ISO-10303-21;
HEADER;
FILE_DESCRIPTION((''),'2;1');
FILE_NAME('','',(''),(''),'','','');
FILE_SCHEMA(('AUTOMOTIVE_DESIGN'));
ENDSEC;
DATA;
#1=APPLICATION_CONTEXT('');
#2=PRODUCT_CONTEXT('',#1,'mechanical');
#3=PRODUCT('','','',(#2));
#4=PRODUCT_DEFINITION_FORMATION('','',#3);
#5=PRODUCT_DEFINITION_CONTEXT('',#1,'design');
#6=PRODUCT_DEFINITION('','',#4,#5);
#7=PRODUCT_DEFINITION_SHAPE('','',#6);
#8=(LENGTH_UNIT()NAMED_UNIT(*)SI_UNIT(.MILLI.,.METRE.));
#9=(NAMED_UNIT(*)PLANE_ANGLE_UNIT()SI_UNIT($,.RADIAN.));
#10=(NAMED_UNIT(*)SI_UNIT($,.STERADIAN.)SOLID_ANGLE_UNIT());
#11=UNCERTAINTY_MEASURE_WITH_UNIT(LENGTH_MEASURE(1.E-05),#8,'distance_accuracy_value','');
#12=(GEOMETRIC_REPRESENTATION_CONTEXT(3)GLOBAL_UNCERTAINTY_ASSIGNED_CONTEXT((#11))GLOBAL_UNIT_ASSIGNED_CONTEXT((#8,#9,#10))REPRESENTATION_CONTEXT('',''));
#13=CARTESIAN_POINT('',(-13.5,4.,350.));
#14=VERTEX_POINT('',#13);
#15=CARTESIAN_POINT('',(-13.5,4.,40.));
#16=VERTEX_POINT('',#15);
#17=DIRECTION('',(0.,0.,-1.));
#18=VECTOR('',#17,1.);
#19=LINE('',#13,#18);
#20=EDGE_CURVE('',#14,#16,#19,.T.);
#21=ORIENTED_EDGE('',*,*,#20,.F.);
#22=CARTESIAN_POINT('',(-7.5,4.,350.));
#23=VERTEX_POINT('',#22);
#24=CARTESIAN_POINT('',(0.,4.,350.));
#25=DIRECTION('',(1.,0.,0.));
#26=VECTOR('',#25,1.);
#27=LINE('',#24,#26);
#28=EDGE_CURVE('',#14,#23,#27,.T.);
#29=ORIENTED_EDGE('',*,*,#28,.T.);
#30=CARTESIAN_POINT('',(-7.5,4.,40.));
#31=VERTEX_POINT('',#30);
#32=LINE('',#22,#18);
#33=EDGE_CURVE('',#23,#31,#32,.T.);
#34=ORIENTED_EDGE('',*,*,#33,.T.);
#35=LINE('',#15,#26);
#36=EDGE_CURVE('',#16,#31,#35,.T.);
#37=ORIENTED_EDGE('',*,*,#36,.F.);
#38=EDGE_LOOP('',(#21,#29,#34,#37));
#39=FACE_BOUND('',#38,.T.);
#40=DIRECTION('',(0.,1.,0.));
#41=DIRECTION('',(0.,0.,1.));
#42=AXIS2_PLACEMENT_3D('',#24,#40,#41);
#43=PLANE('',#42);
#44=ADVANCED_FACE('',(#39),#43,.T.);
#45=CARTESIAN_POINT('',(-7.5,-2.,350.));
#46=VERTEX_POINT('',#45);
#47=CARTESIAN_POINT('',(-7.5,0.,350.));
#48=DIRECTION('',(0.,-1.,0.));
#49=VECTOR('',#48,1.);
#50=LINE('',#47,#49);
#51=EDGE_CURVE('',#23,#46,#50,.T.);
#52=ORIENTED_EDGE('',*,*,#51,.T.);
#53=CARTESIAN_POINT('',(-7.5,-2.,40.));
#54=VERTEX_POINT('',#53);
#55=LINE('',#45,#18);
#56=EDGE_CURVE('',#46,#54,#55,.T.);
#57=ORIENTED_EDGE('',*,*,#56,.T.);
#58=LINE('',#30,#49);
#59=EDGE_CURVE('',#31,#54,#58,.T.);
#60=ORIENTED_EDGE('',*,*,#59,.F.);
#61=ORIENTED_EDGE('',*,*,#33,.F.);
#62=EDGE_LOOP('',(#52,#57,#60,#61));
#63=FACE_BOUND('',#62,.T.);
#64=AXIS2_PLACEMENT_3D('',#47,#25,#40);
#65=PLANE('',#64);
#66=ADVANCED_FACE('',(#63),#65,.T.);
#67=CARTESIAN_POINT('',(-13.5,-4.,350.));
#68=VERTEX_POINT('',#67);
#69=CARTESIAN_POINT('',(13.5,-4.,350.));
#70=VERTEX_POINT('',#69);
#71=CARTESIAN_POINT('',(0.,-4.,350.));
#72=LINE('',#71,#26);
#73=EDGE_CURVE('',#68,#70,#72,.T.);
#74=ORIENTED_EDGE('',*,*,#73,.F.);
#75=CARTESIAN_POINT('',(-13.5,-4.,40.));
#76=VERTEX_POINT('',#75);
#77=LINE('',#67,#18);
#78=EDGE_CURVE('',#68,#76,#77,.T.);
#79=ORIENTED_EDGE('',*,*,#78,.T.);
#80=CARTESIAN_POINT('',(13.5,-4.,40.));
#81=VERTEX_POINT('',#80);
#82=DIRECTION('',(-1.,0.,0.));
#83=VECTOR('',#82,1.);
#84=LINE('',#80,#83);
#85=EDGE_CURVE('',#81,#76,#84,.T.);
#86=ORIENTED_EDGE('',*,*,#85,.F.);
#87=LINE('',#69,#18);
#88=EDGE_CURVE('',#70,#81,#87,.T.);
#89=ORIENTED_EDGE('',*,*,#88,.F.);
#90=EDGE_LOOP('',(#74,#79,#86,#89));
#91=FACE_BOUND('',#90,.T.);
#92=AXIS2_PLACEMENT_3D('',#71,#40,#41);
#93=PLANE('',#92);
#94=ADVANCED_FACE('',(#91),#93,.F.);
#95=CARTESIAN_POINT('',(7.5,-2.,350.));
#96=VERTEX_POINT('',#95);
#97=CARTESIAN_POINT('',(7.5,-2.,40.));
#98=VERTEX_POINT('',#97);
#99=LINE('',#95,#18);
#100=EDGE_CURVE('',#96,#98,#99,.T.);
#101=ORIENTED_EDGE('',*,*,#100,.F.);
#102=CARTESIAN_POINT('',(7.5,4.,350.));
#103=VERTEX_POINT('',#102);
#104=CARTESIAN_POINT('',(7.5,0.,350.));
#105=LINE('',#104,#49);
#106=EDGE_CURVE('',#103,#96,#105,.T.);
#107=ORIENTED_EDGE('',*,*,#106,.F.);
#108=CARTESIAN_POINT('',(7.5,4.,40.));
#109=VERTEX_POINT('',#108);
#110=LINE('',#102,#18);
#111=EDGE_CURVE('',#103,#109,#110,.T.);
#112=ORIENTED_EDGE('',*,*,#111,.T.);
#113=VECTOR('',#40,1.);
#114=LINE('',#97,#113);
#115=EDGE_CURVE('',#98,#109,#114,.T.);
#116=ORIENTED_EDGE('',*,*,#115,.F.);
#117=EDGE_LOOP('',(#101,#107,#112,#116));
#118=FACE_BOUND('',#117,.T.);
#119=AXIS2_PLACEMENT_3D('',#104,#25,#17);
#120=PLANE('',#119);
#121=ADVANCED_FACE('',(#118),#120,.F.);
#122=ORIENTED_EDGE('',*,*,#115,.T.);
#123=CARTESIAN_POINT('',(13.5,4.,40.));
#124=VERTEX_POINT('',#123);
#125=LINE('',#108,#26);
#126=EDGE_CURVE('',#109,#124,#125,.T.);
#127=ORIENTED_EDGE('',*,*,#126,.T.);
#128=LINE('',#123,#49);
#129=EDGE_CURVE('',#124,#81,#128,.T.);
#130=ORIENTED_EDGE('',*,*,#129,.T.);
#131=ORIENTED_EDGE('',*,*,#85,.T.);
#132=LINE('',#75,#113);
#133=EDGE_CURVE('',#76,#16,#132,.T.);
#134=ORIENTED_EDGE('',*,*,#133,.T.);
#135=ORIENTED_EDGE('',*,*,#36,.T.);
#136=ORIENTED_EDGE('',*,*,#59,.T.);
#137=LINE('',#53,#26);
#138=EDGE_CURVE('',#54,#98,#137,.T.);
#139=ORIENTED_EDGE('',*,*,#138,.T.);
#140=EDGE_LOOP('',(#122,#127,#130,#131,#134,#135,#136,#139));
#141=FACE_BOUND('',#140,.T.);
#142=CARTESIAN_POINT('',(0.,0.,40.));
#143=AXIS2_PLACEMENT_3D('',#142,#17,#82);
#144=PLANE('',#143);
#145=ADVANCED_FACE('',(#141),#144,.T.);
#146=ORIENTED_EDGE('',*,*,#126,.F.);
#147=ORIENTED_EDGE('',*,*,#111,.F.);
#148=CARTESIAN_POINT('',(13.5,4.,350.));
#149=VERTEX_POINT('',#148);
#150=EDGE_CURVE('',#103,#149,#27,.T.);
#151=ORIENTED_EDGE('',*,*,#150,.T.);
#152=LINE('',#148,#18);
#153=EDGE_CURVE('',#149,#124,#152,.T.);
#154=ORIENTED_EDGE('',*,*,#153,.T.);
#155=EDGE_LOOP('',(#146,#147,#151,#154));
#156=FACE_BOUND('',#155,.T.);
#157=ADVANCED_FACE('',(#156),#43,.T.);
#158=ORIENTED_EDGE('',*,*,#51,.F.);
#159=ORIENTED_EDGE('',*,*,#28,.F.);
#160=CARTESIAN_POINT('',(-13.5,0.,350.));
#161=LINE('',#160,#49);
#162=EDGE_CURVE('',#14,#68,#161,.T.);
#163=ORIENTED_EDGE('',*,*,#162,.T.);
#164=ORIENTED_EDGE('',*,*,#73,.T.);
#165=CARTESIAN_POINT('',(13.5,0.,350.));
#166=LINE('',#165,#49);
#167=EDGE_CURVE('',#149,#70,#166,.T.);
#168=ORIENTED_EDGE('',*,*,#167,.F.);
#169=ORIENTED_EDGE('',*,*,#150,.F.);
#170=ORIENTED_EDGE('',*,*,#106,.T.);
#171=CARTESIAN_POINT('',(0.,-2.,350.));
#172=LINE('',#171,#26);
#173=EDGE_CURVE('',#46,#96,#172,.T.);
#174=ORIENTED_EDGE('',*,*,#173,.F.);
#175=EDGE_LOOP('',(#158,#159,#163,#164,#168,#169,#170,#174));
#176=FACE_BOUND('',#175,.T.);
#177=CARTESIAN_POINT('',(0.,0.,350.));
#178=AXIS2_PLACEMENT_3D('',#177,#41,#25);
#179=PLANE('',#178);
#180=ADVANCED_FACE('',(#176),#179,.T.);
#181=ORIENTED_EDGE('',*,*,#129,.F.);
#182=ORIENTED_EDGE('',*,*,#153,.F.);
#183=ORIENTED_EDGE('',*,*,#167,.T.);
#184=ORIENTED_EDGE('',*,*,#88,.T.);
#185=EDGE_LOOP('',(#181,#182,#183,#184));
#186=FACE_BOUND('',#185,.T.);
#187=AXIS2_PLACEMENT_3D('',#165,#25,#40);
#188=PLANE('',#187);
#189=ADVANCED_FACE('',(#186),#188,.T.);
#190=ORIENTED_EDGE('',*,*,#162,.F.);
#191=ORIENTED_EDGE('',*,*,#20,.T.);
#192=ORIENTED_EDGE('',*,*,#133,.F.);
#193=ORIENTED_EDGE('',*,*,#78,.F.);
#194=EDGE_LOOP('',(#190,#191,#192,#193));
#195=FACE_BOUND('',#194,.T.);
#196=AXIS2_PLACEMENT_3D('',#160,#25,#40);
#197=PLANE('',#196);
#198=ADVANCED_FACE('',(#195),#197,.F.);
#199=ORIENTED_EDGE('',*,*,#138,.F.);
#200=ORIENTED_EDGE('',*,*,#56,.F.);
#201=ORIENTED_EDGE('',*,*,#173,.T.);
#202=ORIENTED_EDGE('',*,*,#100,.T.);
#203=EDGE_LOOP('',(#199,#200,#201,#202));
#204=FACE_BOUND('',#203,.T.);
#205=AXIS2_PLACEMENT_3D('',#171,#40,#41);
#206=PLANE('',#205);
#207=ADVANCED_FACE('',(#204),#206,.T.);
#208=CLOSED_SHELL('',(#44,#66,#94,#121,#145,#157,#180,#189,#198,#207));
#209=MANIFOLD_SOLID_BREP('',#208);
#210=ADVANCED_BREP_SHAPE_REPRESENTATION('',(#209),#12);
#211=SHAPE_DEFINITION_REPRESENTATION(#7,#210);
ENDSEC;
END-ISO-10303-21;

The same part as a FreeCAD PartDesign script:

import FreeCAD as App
import Part
import Sketcher

V = App.Vector
Q = App.Units.Quantity


def add_polygon(sketch, points):
    """Adds a closed chain of lines whose ends are joined by coincident constraints."""
    first, n = sketch.GeometryCount, len(points)
    for a, b in zip(points, points[1:] + points[:1]):
        sketch.addGeometry(Part.LineSegment(App.Vector(*a, 0), App.Vector(*b, 0)), False)
    for i in range(n):
        sketch.addConstraint(Sketcher.Constraint("Coincident", first + i, 2, first + (i + 1) % n, 1))

doc = App.newDocument("Part")
body = doc.addObject("PartDesign::Body", "Body")

sketch1 = body.newObject("Sketcher::SketchObject", "Sketch")
sketch1.AttachmentSupport = (doc.getObject("XY_Plane"), [""])
sketch1.MapMode = "FlatFace"
add_polygon(sketch1, [(-8, 4), (-14, 4), (-14, -4), (14, -4), (14, 4), (8, 4), (8, -2), (-8, -2)])
sketch1.addConstraint([
    Sketcher.Constraint("Horizontal", 0),
    Sketcher.Constraint("Vertical", 1),
    Sketcher.Constraint("Horizontal", 2),
    Sketcher.Constraint("Vertical", 3),
    Sketcher.Constraint("Horizontal", 4),
    Sketcher.Constraint("Vertical", 5),
    Sketcher.Constraint("Horizontal", 6),
    Sketcher.Constraint("Vertical", 7),
    Sketcher.Constraint("Symmetric", 0, 2, 2, 2, -1, 1),
    Sketcher.Constraint("Symmetric", 4, 2, 7, 2, -2),
    Sketcher.Constraint("Equal", 4, 5),
    Sketcher.Constraint("DistanceX", 0, 2, 0, 1, Q("6 mm")),
    Sketcher.Constraint("DistanceX", 2, 1, 2, 2, Q("27 mm")),
    Sketcher.Constraint("DistanceY", 1, 2, 1, 1, Q("8 mm")),
])
pad1 = body.newObject("PartDesign::Pad", "Pad")
pad1.Profile = sketch1
pad1.Length = 350

sketch2 = body.newObject("Sketcher::SketchObject", "Sketch001")
sketch2.AttachmentSupport = (doc.getObject("XY_Plane"), [""])
sketch2.MapMode = "FlatFace"
add_polygon(sketch2, [(8, 4), (14, 4), (14, -4), (-14, -4), (-14, 4), (-8, 4), (-8, -2), (8, -2)])
sketch2.addConstraint([
    Sketcher.Constraint("Horizontal", 0),
    Sketcher.Constraint("Vertical", 1),
    Sketcher.Constraint("Horizontal", 2),
    Sketcher.Constraint("Vertical", 3),
    Sketcher.Constraint("Horizontal", 4),
    Sketcher.Constraint("Vertical", 5),
    Sketcher.Constraint("Horizontal", 6),
    Sketcher.Constraint("Vertical", 7),
    Sketcher.Constraint("Symmetric", 0, 2, 2, 2, -1, 1),
    Sketcher.Constraint("Symmetric", 4, 2, 7, 2, -2),
    Sketcher.Constraint("Equal", 4, 5),
    Sketcher.Constraint("DistanceX", 0, 1, 0, 2, Q("6 mm")),
    Sketcher.Constraint("DistanceX", 2, 2, 2, 1, Q("27 mm")),
    Sketcher.Constraint("DistanceY", 1, 2, 1, 1, Q("8 mm")),
])
pocket1 = body.newObject("PartDesign::Pocket", "Pocket")
pocket1.Profile = sketch2
pocket1.Length = 40
pocket1.Reversed = True

doc.recompute()
